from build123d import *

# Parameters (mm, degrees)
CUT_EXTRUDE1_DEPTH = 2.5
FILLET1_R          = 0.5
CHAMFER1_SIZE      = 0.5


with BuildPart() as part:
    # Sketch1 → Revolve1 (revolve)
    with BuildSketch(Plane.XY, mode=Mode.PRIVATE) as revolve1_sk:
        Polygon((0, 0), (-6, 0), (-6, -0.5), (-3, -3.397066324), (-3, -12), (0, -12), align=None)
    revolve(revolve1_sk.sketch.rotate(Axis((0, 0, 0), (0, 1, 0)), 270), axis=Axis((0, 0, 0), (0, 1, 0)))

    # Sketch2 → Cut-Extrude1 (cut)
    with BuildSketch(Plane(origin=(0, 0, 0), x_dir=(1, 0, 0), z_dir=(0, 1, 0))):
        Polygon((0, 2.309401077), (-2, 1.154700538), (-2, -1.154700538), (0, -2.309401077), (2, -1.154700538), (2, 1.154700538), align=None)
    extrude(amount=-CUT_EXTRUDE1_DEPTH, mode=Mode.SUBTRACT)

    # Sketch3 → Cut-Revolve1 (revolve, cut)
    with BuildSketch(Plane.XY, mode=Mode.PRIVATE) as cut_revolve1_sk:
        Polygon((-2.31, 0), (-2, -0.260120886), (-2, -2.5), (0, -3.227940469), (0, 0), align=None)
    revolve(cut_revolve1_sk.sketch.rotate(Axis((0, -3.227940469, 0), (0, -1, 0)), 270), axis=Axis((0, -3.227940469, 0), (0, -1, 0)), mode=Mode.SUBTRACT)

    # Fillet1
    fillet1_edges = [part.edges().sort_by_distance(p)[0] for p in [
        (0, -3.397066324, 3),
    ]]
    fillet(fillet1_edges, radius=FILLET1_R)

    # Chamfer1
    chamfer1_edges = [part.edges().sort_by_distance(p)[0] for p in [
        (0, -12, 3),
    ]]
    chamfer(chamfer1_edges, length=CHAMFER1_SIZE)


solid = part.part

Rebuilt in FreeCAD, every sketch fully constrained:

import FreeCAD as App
import Part
import Sketcher

V = App.Vector
Q = App.Units.Quantity


def edges_at(feature, points):
    """Names of the edges that pass closest to the given points."""
    edges = feature.Shape.Edges
    near = lambda p: min(range(len(edges)), key=lambda i: edges[i].distToShape(Part.Vertex(*p))[0])
    return sorted({f"Edge{near(p) + 1}" for p in points})


def add_polygon(sketch, points):
    """Adds a closed chain of lines whose ends are joined by coincident constraints."""
    first, n = sketch.GeometryCount, len(points)
    for a, b in zip(points, points[1:] + points[:1]):
        sketch.addGeometry(Part.LineSegment(App.Vector(*a, 0), App.Vector(*b, 0)), False)
    for i in range(n):
        sketch.addConstraint(Sketcher.Constraint("Coincident", first + i, 2, first + (i + 1) % n, 1))

doc = App.newDocument("Part")
body = doc.addObject("PartDesign::Body", "Body")

sketch1 = body.newObject("Sketcher::SketchObject", "Sketch")
sketch1.AttachmentSupport = (doc.getObject("XY_Plane"), [""])
sketch1.MapMode = "FlatFace"
add_polygon(sketch1, [(0, 0), (-6, 0), (-6, -0.5), (-3, -3.4), (-3, -12), (0, -12)])
sketch1.addConstraint([
    Sketcher.Constraint("Horizontal", 0),
    Sketcher.Constraint("Vertical", 1),
    Sketcher.Constraint("Vertical", 3),
    Sketcher.Constraint("Horizontal", 4),
    Sketcher.Constraint("Vertical", 5),
    Sketcher.Constraint("Coincident", 5, 2, -1, 1),
    Sketcher.Constraint("DistanceX", 0, 2, 0, 1, 6.0),
    Sketcher.Constraint("DistanceX", 4, 1, 4, 2, 3.0),
    Sketcher.Constraint("DistanceY", 5, 1, 5, 2, 12.0),
    Sketcher.Constraint("Angle", 2, Q("-44 deg")),
    Sketcher.Constraint("DistanceY", 1, 2, 1, 1, 0.5),
])
revolution = body.newObject("PartDesign::Revolution", "Revolution")
revolution.Profile = sketch1
revolution.ReferenceAxis = (sketch1, ["V_Axis"])
revolution.Angle = 360

sketch2 = body.newObject("Sketcher::SketchObject", "Sketch001")
sketch2.AttachmentSupport = (doc.getObject("XZ_Plane"), [""])
sketch2.MapMode = "FlatFace"
add_polygon(sketch2, [(0, -2.3), (-2, -1.2), (-2, 1.2), (0, 2.3), (2, 1.2), (2, -1.2)])
sketch2.addConstraint([
    Sketcher.Constraint("Vertical", 1),
    Sketcher.Constraint("Vertical", 4),
    Sketcher.Constraint("Symmetric", 0, 2, 3, 2, -1, 1),
    Sketcher.Constraint("Symmetric", 2, 2, 5, 2, -1, 1),
    Sketcher.Constraint("PointOnObject", 2, 2, -2),
    Sketcher.Constraint("Parallel", 2, 5),
    Sketcher.Constraint("Horizontal", 1, 2, 3, 2),
    Sketcher.Constraint("Angle", 0, Q("150 deg")),
    Sketcher.Constraint("DistanceX", 0, 2, -1, 1, 2.0),
    Sketcher.Constraint("DistanceY", 1, 1, 1, 2, 2.309401),
])
pocket1 = body.newObject("PartDesign::Pocket", "Pocket")
pocket1.Profile = sketch2
pocket1.Length = 2.5
pocket1.Reversed = True

sketch3 = body.newObject("Sketcher::SketchObject", "Sketch002")
sketch3.AttachmentSupport = (doc.getObject("XY_Plane"), [""])
sketch3.MapMode = "FlatFace"
add_polygon(sketch3, [(-2.31, 0), (-2, -0.26), (-2, -2.5), (0, -3.23), (0, 0)])
sketch3.addConstraint([
    Sketcher.Constraint("Vertical", 1),
    Sketcher.Constraint("Vertical", 3),
    Sketcher.Constraint("Horizontal", 4),
    Sketcher.Constraint("Coincident", 3, 2, -1, 1),
    Sketcher.Constraint("Angle", 0, Q("-40 deg")),
    Sketcher.Constraint("Angle", 2, Q("-20 deg")),
    Sketcher.Constraint("DistanceX", 0, 2, -1, 1, 2.0),
    Sketcher.Constraint("DistanceX", 4, 2, 4, 1, 2.31),
    Sketcher.Constraint("DistanceY", 1, 2, -1, 1, 2.5),
])
groove = body.newObject("PartDesign::Groove", "Groove")
groove.Profile = sketch3
groove.ReferenceAxis = (sketch3, ["V_Axis"])
groove.Angle = 360
doc.recompute()

fillet = body.newObject("PartDesign::Fillet", "Fillet")
fillet.Base = (groove, edges_at(groove, [(0, -3.397, 3)]))
fillet.Radius = 0.5
doc.recompute()

chamfer = body.newObject("PartDesign::Chamfer", "Chamfer")
chamfer.Base = (fillet, edges_at(fillet, [(0, -12, 3)]))
chamfer.Size = 0.5

doc.recompute()
